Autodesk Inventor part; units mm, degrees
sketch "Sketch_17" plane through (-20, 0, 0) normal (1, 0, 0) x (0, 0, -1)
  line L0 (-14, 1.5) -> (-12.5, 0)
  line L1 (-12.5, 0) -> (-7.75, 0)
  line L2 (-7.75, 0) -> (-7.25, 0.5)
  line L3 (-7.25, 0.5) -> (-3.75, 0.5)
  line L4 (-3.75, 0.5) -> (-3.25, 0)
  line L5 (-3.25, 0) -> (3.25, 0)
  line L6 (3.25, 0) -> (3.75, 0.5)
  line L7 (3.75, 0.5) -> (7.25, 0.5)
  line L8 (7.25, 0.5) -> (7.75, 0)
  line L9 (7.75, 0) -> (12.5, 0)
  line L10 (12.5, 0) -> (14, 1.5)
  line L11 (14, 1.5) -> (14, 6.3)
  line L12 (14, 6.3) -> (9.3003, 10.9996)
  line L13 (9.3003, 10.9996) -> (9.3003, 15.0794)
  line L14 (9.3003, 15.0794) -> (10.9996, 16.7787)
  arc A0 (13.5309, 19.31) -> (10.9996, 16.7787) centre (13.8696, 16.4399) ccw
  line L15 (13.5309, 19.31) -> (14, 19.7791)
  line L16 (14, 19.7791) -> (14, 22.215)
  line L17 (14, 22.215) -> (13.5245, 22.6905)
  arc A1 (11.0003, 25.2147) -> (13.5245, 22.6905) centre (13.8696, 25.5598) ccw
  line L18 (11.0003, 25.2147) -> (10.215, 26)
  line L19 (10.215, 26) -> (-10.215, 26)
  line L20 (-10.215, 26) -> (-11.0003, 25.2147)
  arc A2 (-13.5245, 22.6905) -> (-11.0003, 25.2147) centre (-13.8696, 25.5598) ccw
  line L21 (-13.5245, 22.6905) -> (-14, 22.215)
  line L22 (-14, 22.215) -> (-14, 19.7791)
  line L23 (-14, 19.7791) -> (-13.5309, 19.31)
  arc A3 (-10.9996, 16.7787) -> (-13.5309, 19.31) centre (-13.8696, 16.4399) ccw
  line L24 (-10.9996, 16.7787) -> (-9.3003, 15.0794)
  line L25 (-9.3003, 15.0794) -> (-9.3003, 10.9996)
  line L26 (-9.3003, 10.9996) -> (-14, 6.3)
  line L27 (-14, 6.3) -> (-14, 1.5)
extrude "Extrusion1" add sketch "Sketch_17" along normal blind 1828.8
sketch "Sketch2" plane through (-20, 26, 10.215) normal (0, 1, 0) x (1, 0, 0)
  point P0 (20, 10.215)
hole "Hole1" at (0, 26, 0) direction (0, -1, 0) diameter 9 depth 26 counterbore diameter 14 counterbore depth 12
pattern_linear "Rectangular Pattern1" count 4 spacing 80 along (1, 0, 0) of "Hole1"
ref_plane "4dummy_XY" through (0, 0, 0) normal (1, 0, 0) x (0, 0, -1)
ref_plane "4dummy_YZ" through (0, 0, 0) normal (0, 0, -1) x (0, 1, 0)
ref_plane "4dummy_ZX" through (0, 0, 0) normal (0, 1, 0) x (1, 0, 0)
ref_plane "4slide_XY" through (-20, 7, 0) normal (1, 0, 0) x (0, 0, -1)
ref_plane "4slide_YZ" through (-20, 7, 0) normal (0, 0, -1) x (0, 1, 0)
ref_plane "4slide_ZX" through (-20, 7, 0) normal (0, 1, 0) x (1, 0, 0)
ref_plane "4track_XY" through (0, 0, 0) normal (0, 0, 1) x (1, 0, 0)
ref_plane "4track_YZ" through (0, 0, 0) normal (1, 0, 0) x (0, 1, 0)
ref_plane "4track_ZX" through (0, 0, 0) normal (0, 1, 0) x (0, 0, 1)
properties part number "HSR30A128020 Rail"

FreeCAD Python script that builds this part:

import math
import FreeCAD as App
import Part
import Sketcher
from FreeCAD import Vector

doc = App.newDocument("Part")
body = doc.addObject("PartDesign::Body", "Body")

# Sketch on YZ plane
sketch1 = body.newObject("Sketcher::SketchObject", "Sketch")
sketch1.AttachmentSupport = (doc.getObject("YZ_Plane"), [""])
sketch1.MapMode = "FlatFace"
sketch1.AttachmentOffset = App.Placement(Vector(0, 0, -20), App.Rotation())
sketch1.addGeometry(Part.LineSegment(Vector(6.3, 14, 0), Vector(1.5, 14, 0)), False)
sketch1.addGeometry(Part.LineSegment(Vector(1.5, 14, 0), Vector(0, 12.5, 0)), False)
sketch1.addGeometry(Part.LineSegment(Vector(0, 12.5, 0), Vector(0, 7.8, 0)), False)
sketch1.addGeometry(Part.LineSegment(Vector(0, 7.8, 0), Vector(0.5, 7.2, 0)), False)
sketch1.addGeometry(Part.LineSegment(Vector(0.5, 7.2, 0), Vector(0.5, 3.8, 0)), False)
sketch1.addGeometry(Part.LineSegment(Vector(0.5, 3.8, 0), Vector(0, 3.2, 0)), False)
sketch1.addGeometry(Part.LineSegment(Vector(0, 3.2, 0), Vector(0, -3.2, 0)), False)
sketch1.addGeometry(Part.LineSegment(Vector(0, -3.2, 0), Vector(0.5, -3.8, 0)), False)
sketch1.addGeometry(Part.LineSegment(Vector(0.5, -3.8, 0), Vector(0.5, -7.2, 0)), False)
sketch1.addGeometry(Part.LineSegment(Vector(0.5, -7.2, 0), Vector(0, -7.8, 0)), False)
sketch1.addGeometry(Part.LineSegment(Vector(0, -7.8, 0), Vector(0, -12.5, 0)), False)
sketch1.addGeometry(Part.LineSegment(Vector(0, -12.5, 0), Vector(1.5, -14, 0)), False)
sketch1.addGeometry(Part.LineSegment(Vector(1.5, -14, 0), Vector(6.3, -14, 0)), False)
sketch1.addGeometry(Part.LineSegment(Vector(6.3, -14, 0), Vector(11, -9.3, 0)), False)
sketch1.addGeometry(Part.LineSegment(Vector(11, -9.3, 0), Vector(15.1, -9.3, 0)), False)
sketch1.addGeometry(Part.LineSegment(Vector(15.1, -9.3, 0), Vector(16.8, -11, 0)), False)
sketch1.addGeometry(Part.ArcOfCircle(Part.Circle(Vector(16.4, -13.9, 0), Vector(0, 0, 1), 2.9), math.radians(7), math.radians(83)), False)
sketch1.addGeometry(Part.LineSegment(Vector(19.3, -13.5, 0), Vector(19.8, -14, 0)), False)
sketch1.addGeometry(Part.LineSegment(Vector(19.8, -14, 0), Vector(22.2, -14, 0)), False)
sketch1.addGeometry(Part.LineSegment(Vector(22.2, -14, 0), Vector(22.7, -13.5, 0)), False)
sketch1.addGeometry(Part.ArcOfCircle(Part.Circle(Vector(25.6, -13.9, 0), Vector(0, 0, 1), 2.9), math.radians(97), math.radians(173)), False)
sketch1.addGeometry(Part.LineSegment(Vector(25.2, -11, 0), Vector(26, -10.2, 0)), False)
sketch1.addGeometry(Part.LineSegment(Vector(26, -10.2, 0), Vector(26, 10.2, 0)), False)
sketch1.addGeometry(Part.LineSegment(Vector(26, 10.2, 0), Vector(25.2, 11, 0)), False)
sketch1.addGeometry(Part.ArcOfCircle(Part.Circle(Vector(25.6, 13.9, 0), Vector(0, 0, 1), 2.9), math.radians(-173), math.radians(-97)), False)
sketch1.addGeometry(Part.LineSegment(Vector(22.7, 13.5, 0), Vector(22.2, 14, 0)), False)
sketch1.addGeometry(Part.LineSegment(Vector(22.2, 14, 0), Vector(19.8, 14, 0)), False)
sketch1.addGeometry(Part.LineSegment(Vector(19.8, 14, 0), Vector(19.3, 13.5, 0)), False)
sketch1.addGeometry(Part.ArcOfCircle(Part.Circle(Vector(16.4, 13.9, 0), Vector(0, 0, 1), 2.9), math.radians(-83), math.radians(-7)), False)
sketch1.addGeometry(Part.LineSegment(Vector(16.8, 11, 0), Vector(15.1, 9.3, 0)), False)
sketch1.addGeometry(Part.LineSegment(Vector(15.1, 9.3, 0), Vector(11, 9.3, 0)), False)
sketch1.addGeometry(Part.LineSegment(Vector(11, 9.3, 0), Vector(6.3, 14, 0)), False)
sketch1.addConstraint(Sketcher.Constraint("Coincident", 0, 2, 1, 1))
sketch1.addConstraint(Sketcher.Constraint("Coincident", 1, 2, 2, 1))
sketch1.addConstraint(Sketcher.Constraint("Coincident", 2, 2, 3, 1))
sketch1.addConstraint(Sketcher.Constraint("Coincident", 3, 2, 4, 1))
sketch1.addConstraint(Sketcher.Constraint("Coincident", 4, 2, 5, 1))
sketch1.addConstraint(Sketcher.Constraint("Coincident", 5, 2, 6, 1))
sketch1.addConstraint(Sketcher.Constraint("Coincident", 6, 2, 7, 1))
sketch1.addConstraint(Sketcher.Constraint("Coincident", 7, 2, 8, 1))
sketch1.addConstraint(Sketcher.Constraint("Coincident", 8, 2, 9, 1))
sketch1.addConstraint(Sketcher.Constraint("Coincident", 9, 2, 10, 1))
sketch1.addConstraint(Sketcher.Constraint("Coincident", 10, 2, 11, 1))
sketch1.addConstraint(Sketcher.Constraint("Coincident", 11, 2, 12, 1))
sketch1.addConstraint(Sketcher.Constraint("Coincident", 12, 2, 13, 1))
sketch1.addConstraint(Sketcher.Constraint("Coincident", 13, 2, 14, 1))
sketch1.addConstraint(Sketcher.Constraint("Coincident", 14, 2, 15, 1))
sketch1.addConstraint(Sketcher.Constraint("Coincident", 15, 2, 16, 2))
sketch1.addConstraint(Sketcher.Constraint("Coincident", 16, 1, 17, 1))
sketch1.addConstraint(Sketcher.Constraint("Coincident", 17, 2, 18, 1))
sketch1.addConstraint(Sketcher.Constraint("Coincident", 18, 2, 19, 1))
sketch1.addConstraint(Sketcher.Constraint("Coincident", 19, 2, 20, 2))
sketch1.addConstraint(Sketcher.Constraint("Coincident", 20, 1, 21, 1))
sketch1.addConstraint(Sketcher.Constraint("Coincident", 21, 2, 22, 1))
sketch1.addConstraint(Sketcher.Constraint("Coincident", 22, 2, 23, 1))
sketch1.addConstraint(Sketcher.Constraint("Coincident", 23, 2, 24, 2))
sketch1.addConstraint(Sketcher.Constraint("Coincident", 24, 1, 25, 1))
sketch1.addConstraint(Sketcher.Constraint("Coincident", 25, 2, 26, 1))
sketch1.addConstraint(Sketcher.Constraint("Coincident", 26, 2, 27, 1))
sketch1.addConstraint(Sketcher.Constraint("Coincident", 27, 2, 28, 2))
sketch1.addConstraint(Sketcher.Constraint("Coincident", 28, 1, 29, 1))
sketch1.addConstraint(Sketcher.Constraint("Coincident", 29, 2, 30, 1))
sketch1.addConstraint(Sketcher.Constraint("Coincident", 30, 2, 31, 1))
sketch1.addConstraint(Sketcher.Constraint("Coincident", 31, 2, 0, 1))
sketch1.addConstraint(Sketcher.Constraint("Horizontal", 0))
sketch1.addConstraint(Sketcher.Constraint("Vertical", 2))
sketch1.addConstraint(Sketcher.Constraint("Vertical", 4))
sketch1.addConstraint(Sketcher.Constraint("Vertical", 6))
sketch1.addConstraint(Sketcher.Constraint("Vertical", 8))
sketch1.addConstraint(Sketcher.Constraint("Vertical", 10))
sketch1.addConstraint(Sketcher.Constraint("Horizontal", 12))
sketch1.addConstraint(Sketcher.Constraint("Horizontal", 14))
sketch1.addConstraint(Sketcher.Constraint("Horizontal", 18))
sketch1.addConstraint(Sketcher.Constraint("Vertical", 22))
sketch1.addConstraint(Sketcher.Constraint("Horizontal", 26))
sketch1.addConstraint(Sketcher.Constraint("Horizontal", 30))
sketch1.addConstraint(Sketcher.Constraint("Equal", 16, 20))
sketch1.addConstraint(Sketcher.Constraint("Equal", 20, 24))
sketch1.addConstraint(Sketcher.Constraint("Equal", 24, 28))
sketch1.addConstraint(Sketcher.Constraint("Symmetric", 5, 2, 6, 2, -1, 1))
sketch1.addConstraint(Sketcher.Constraint("Symmetric", 2, 2, 9, 2, -1, 1))
sketch1.addConstraint(Sketcher.Constraint("Symmetric", 20, 3, 24, 3, -1))
sketch1.addConstraint(Sketcher.Constraint("Symmetric", 16, 3, 28, 3, -1))
sketch1.addConstraint(Sketcher.Constraint("Symmetric", 4, 2, 7, 2, -1))
sketch1.addConstraint(Sketcher.Constraint("Symmetric", 1, 2, 10, 2, -1))
sketch1.addConstraint(Sketcher.Constraint("Symmetric", 0, 2, 11, 2, -1))
sketch1.addConstraint(Sketcher.Constraint("Symmetric", 18, 2, 25, 2, -1))
sketch1.addConstraint(Sketcher.Constraint("Symmetric", 14, 2, 29, 2, -1))
sketch1.addConstraint(Sketcher.Constraint("Perpendicular", 1, 3))
sketch1.addConstraint(Sketcher.Constraint("Perpendicular", 3, 5))
sketch1.addConstraint(Sketcher.Constraint("Perpendicular", 5, 7))
sketch1.addConstraint(Sketcher.Constraint("Perpendicular", 7, 9))
sketch1.addConstraint(Sketcher.Constraint("Perpendicular", 11, 13))
sketch1.addConstraint(Sketcher.Constraint("Perpendicular", 13, 15))
sketch1.addConstraint(Sketcher.Constraint("Parallel", 15, 17))
sketch1.addConstraint(Sketcher.Constraint("Perpendicular", 17, 19))
sketch1.addConstraint(Sketcher.Constraint("Parallel", 19, 21))
sketch1.addConstraint(Sketcher.Constraint("Perpendicular", 21, 23))
sketch1.addConstraint(Sketcher.Constraint("Parallel", 23, 25))
sketch1.addConstraint(Sketcher.Constraint("Perpendicular", 25, 27))
sketch1.addConstraint(Sketcher.Constraint("Parallel", 27, 29))
sketch1.addConstraint(Sketcher.Constraint("Perpendicular", 29, 31))
sketch1.addConstraint(Sketcher.Constraint("Horizontal", 16, 3, 20, 3))
sketch1.addConstraint(Sketcher.Constraint("Horizontal", 12, 2, 17, 2))
sketch1.addConstraint(Sketcher.Constraint("Vertical", 20, 1, 23, 2))
sketch1.addConstraint(Sketcher.Constraint("Vertical", 17, 2, 26, 2))
sketch1.addConstraint(Sketcher.Constraint("Vertical", 13, 2, 30, 2))
sketch1.addConstraint(Sketcher.Constraint("Radius", 16, 2.89))
sketch1.addConstraint(Sketcher.Constraint("DistanceX", 0, 2, 0, 1, 4.8))
sketch1.addConstraint(Sketcher.Constraint("DistanceY", 4, 2, 4, 1, 3.5))
sketch1.addConstraint(Sketcher.Constraint("DistanceY", 6, 2, 6, 1, 6.5))
sketch1.addConstraint(Sketcher.Constraint("DistanceY", -1, 1, 0, 2, 14.0))
sketch1.addConstraint(Sketcher.Constraint("DistanceX", -1, 1, 21, 2, 26.0))
sketch1.addConstraint(Sketcher.Constraint("DistanceX", 3, 2, 0, 2, 1.0))
sketch1.addConstraint(Sketcher.Constraint("DistanceY", 4, 2, 2, 2, 4.0))
sketch1.addConstraint(Sketcher.Constraint("DistanceY", 22, 1, 22, 2, 20.43))
sketch1.addConstraint(Sketcher.Constraint("DistanceX", 18, 1, 18, 2, 2.436))
sketch1.addConstraint(Sketcher.Constraint("DistanceX", -1, 1, 16, 3, 16.44))
sketch1.addConstraint(Sketcher.Constraint("DistanceX", -1, 1, 16, 1, 19.31))
sketch1.addConstraint(Sketcher.Constraint("DistanceX", 16, 3, 20, 3, 9.12))
sketch1.addConstraint(Sketcher.Constraint("DistanceY", 16, 3, 15, 2, 2.87))
sketch1.addConstraint(Sketcher.Constraint("DistanceX", 14, 1, 14, 2, 4.0798))
sketch1.addConstraint(Sketcher.Constraint("DistanceY", 16, 1, -1, 1, 13.531))
pad1 = body.newObject("PartDesign::Pad", "Pad")
pad1.Profile = sketch1
pad1.Length = 1828.8

# Sketch on XZ plane
sketch2 = body.newObject("Sketcher::SketchObject", "Sketch001")
sketch2.AttachmentSupport = (doc.getObject("XZ_Plane"), [""])
sketch2.MapMode = "FlatFace"
sketch2.AttachmentOffset = App.Placement(Vector(0, 0, -26), App.Rotation())
sketch2.addGeometry(Part.Circle(Vector(0, 0, 0), Vector(0, 0, 1), 4.5), False)
sketch2.addConstraint(Sketcher.Constraint("Coincident", 0, 3, -1, 1))
sketch2.addConstraint(Sketcher.Constraint("Diameter", 0, 9.0))
doc.recompute()
hole = body.newObject("PartDesign::Hole", "Hole")
hole.Profile = sketch2
hole.ThreadType = "None"
hole.Diameter = 9
hole.DepthType = "Dimension"
hole.Depth = 26
hole.DrillPoint = "Flat"
hole.HoleCutType = "Counterbore"
hole.HoleCutDiameter = 14
hole.HoleCutDepth = 12
hole.Reversed = True
doc.recompute()

linearpattern = body.newObject("PartDesign::LinearPattern", "LinearPattern")
linearpattern.Originals = [hole]
linearpattern.Direction = (doc.getObject("X_Axis"), [""])
linearpattern.Mode = "offset"
linearpattern.Offset = 80
linearpattern.Occurrences = 4
body.Tip = linearpattern

doc.recompute()
